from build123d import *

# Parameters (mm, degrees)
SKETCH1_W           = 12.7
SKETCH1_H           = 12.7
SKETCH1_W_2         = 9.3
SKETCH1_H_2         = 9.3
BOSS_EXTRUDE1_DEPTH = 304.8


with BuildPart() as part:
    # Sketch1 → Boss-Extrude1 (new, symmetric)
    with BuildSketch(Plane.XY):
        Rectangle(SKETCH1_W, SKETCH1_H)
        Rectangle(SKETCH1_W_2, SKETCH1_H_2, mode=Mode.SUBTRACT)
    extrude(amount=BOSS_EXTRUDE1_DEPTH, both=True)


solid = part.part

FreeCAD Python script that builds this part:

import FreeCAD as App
import Part
import Sketcher
Q = App.Units.Quantity


def add_polygon(sketch, points):
    """Adds a closed chain of lines whose ends are joined by coincident constraints."""
    first, n = sketch.GeometryCount, len(points)
    for a, b in zip(points, points[1:] + points[:1]):
        sketch.addGeometry(Part.LineSegment(App.Vector(*a, 0), App.Vector(*b, 0)), False)
    for i in range(n):
        sketch.addConstraint(Sketcher.Constraint("Coincident", first + i, 2, first + (i + 1) % n, 1))

doc = App.newDocument("Part")
body = doc.addObject("PartDesign::Body", "Body")

sketch1 = doc.addObject("Sketcher::SketchObject", "Sketch")
body.addObject(sketch1)
sketch1.AttachmentSupport = (doc.XY_Plane, [""])
sketch1.MapMode = "FlatFace"
add_polygon(sketch1, [(-6, 6), (-6, -6), (6, -6), (6, 6)])
add_polygon(sketch1, [(5, -5), (-5, -5), (-5, 5), (5, 5)])
sketch1.addConstraint([
    Sketcher.Constraint("Vertical", 0),
    Sketcher.Constraint("Horizontal", 1),
    Sketcher.Constraint("Vertical", 2),
    Sketcher.Constraint("Horizontal", 3),
    Sketcher.Constraint("Horizontal", 4),
    Sketcher.Constraint("Vertical", 5),
    Sketcher.Constraint("Horizontal", 6),
    Sketcher.Constraint("Vertical", 7),
    Sketcher.Constraint("Symmetric", 0, 2, 2, 2, -1, 1),
    Sketcher.Constraint("Symmetric", 4, 2, 6, 2, -1, 1),
    Sketcher.Constraint("Equal", 3, 0),
    Sketcher.Constraint("Equal", 6, 5),
    Sketcher.Constraint("DistanceX", 1, 1, 1, 2, Q("0.5 in")),
    Sketcher.Constraint("DistanceX", 4, 2, 4, 1, Q("9.3 mm")),
])
pad1 = doc.addObject("PartDesign::Pad", "Pad")
body.addObject(pad1)
pad1.Profile = sketch1
pad1.Length = Q("24 in")
pad1.Midplane = True

doc.recompute()
